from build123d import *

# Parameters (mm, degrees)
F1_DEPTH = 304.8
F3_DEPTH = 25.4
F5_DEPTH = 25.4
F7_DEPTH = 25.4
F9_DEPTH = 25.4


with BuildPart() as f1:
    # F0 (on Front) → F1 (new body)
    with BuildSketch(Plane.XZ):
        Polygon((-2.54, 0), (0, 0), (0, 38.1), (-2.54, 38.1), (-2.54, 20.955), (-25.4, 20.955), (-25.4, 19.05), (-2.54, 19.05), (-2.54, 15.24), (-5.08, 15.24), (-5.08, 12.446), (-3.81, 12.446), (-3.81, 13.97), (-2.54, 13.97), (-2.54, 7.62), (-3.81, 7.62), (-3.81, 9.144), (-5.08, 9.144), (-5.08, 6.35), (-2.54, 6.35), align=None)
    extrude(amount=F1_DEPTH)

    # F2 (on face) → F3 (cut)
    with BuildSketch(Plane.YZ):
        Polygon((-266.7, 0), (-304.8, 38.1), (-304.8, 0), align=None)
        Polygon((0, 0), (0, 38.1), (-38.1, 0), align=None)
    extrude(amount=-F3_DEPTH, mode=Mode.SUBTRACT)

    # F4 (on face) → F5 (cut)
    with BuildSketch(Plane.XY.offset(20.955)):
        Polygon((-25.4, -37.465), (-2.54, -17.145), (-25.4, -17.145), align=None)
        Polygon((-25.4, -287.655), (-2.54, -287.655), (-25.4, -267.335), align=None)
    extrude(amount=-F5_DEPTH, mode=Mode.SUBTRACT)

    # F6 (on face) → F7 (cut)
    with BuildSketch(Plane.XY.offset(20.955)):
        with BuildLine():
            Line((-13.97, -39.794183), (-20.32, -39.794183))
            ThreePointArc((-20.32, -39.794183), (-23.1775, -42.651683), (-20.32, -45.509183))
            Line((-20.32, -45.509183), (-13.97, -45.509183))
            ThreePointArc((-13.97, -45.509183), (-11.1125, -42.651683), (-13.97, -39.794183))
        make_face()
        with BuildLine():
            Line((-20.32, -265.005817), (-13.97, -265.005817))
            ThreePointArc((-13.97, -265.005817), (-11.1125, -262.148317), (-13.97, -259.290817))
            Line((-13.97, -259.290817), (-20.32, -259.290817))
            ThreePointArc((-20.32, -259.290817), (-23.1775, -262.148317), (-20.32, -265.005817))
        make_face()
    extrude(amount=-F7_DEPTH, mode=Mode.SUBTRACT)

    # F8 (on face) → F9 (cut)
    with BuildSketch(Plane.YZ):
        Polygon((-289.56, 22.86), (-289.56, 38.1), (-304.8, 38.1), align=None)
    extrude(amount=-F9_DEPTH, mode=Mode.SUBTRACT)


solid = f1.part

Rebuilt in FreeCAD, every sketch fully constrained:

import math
import FreeCAD as App
import Part
import Sketcher
from FreeCAD import Vector
Q = App.Units.Quantity

doc = App.newDocument("Part")
body = doc.addObject("PartDesign::Body", "Body")

# Sketch on XZ plane
sketch1 = body.newObject("Sketcher::SketchObject", "Sketch")
sketch1.AttachmentSupport = (doc.getObject("XZ_Plane"), [""])
sketch1.MapMode = "FlatFace"
sketch1.addGeometry([
    Part.LineSegment(Vector(-2.54, 0, 0), Vector(0, 0, 0)),  # 0
    Part.LineSegment(Vector(0, 0, 0), Vector(0, 38.1, 0)),  # 1
    Part.LineSegment(Vector(0, 38.1, 0), Vector(-2.54, 38.1, 0)),  # 2
    Part.LineSegment(Vector(-2.54, 38.1, 0), Vector(-2.54, 20.955, 0)),  # 3
    Part.LineSegment(Vector(-2.54, 20.955, 0), Vector(-25.4, 20.955, 0)),  # 4
    Part.LineSegment(Vector(-25.4, 20.955, 0), Vector(-25.4, 19.05, 0)),  # 5
    Part.LineSegment(Vector(-25.4, 19.05, 0), Vector(-2.54, 19.05, 0)),  # 6
    Part.LineSegment(Vector(-2.54, 19.05, 0), Vector(-2.54, 15.24, 0)),  # 7
    Part.LineSegment(Vector(-2.54, 15.24, 0), Vector(-5.08, 15.24, 0)),  # 8
    Part.LineSegment(Vector(-5.08, 15.24, 0), Vector(-5.08, 12.446, 0)),  # 9
    Part.LineSegment(Vector(-5.08, 12.446, 0), Vector(-3.81, 12.446, 0)),  # 10
    Part.LineSegment(Vector(-3.81, 12.446, 0), Vector(-3.81, 13.97, 0)),  # 11
    Part.LineSegment(Vector(-3.81, 13.97, 0), Vector(-2.54, 13.97, 0)),  # 12
    Part.LineSegment(Vector(-2.54, 13.97, 0), Vector(-2.54, 7.62, 0)),  # 13
    Part.LineSegment(Vector(-2.54, 7.62, 0), Vector(-3.81, 7.62, 0)),  # 14
    Part.LineSegment(Vector(-3.81, 7.62, 0), Vector(-3.81, 9.144, 0)),  # 15
    Part.LineSegment(Vector(-3.81, 9.144, 0), Vector(-5.08, 9.144, 0)),  # 16
    Part.LineSegment(Vector(-5.08, 9.144, 0), Vector(-5.08, 6.35, 0)),  # 17
    Part.LineSegment(Vector(-5.08, 6.35, 0), Vector(-2.54, 6.35, 0)),  # 18
    Part.LineSegment(Vector(-2.54, 6.35, 0), Vector(-2.54, 0, 0)),  # 19
], False)
sketch1.addConstraint([
    Sketcher.Constraint("Coincident", 0, 2, 1, 1),
    Sketcher.Constraint("Coincident", 1, 2, 2, 1),
    Sketcher.Constraint("Coincident", 2, 2, 3, 1),
    Sketcher.Constraint("Coincident", 3, 2, 4, 1),
    Sketcher.Constraint("Coincident", 4, 2, 5, 1),
    Sketcher.Constraint("Coincident", 5, 2, 6, 1),
    Sketcher.Constraint("Coincident", 6, 2, 7, 1),
    Sketcher.Constraint("Coincident", 7, 2, 8, 1),
    Sketcher.Constraint("Coincident", 8, 2, 9, 1),
    Sketcher.Constraint("Coincident", 9, 2, 10, 1),
    Sketcher.Constraint("Coincident", 10, 2, 11, 1),
    Sketcher.Constraint("Coincident", 11, 2, 12, 1),
    Sketcher.Constraint("Coincident", 12, 2, 13, 1),
    Sketcher.Constraint("Coincident", 13, 2, 14, 1),
    Sketcher.Constraint("Coincident", 14, 2, 15, 1),
    Sketcher.Constraint("Coincident", 15, 2, 16, 1),
    Sketcher.Constraint("Coincident", 16, 2, 17, 1),
    Sketcher.Constraint("Coincident", 17, 2, 18, 1),
    Sketcher.Constraint("Coincident", 18, 2, 19, 1),
    Sketcher.Constraint("Coincident", 19, 2, 0, 1),
    Sketcher.Constraint("Horizontal", 0),
    Sketcher.Constraint("Vertical", 1),
    Sketcher.Constraint("Horizontal", 2),
    Sketcher.Constraint("Vertical", 3),
    Sketcher.Constraint("Horizontal", 4),
    Sketcher.Constraint("Vertical", 5),
    Sketcher.Constraint("Horizontal", 6),
    Sketcher.Constraint("Vertical", 7),
    Sketcher.Constraint("Horizontal", 8),
    Sketcher.Constraint("Vertical", 9),
    Sketcher.Constraint("Horizontal", 10),
    Sketcher.Constraint("Vertical", 11),
    Sketcher.Constraint("Horizontal", 12),
    Sketcher.Constraint("Vertical", 13),
    Sketcher.Constraint("Horizontal", 14),
    Sketcher.Constraint("Vertical", 15),
    Sketcher.Constraint("Horizontal", 16),
    Sketcher.Constraint("Vertical", 17),
    Sketcher.Constraint("Horizontal", 18),
    Sketcher.Constraint("Vertical", 19),
    Sketcher.Constraint("Coincident", 0, 2, -1, 1),
    Sketcher.Constraint("Vertical", 3, 2, 6, 2),
    Sketcher.Constraint("Vertical", 7, 2, 12, 2),
    Sketcher.Constraint("Vertical", 11, 2, 14, 2),
    Sketcher.Constraint("Vertical", 9, 2, 16, 2),
    Sketcher.Constraint("Vertical", 13, 2, 18, 2),
    Sketcher.Constraint("Equal", 2, 8),
    Sketcher.Constraint("Equal", 10, 12),
    Sketcher.Constraint("Equal", 11, 15),
    Sketcher.Constraint("Equal", 9, 17),
    Sketcher.Constraint("Equal", 13, 19),
    Sketcher.Constraint("DistanceX", 0, 1, 0, 2, Q("0.1 in")),
    Sketcher.Constraint("DistanceX", 4, 2, 4, 1, Q("0.9 in")),
    Sketcher.Constraint("DistanceY", 1, 1, 1, 2, Q("1.5 in")),
    Sketcher.Constraint("DistanceY", 7, 2, 7, 1, Q("0.15 in")),
    Sketcher.Constraint("DistanceY", 9, 2, 9, 1, Q("0.11 in")),
    Sketcher.Constraint("DistanceY", 11, 1, 11, 2, Q("0.06 in")),
    Sketcher.Constraint("DistanceY", 13, 2, 13, 1, Q("0.25 in")),
    Sketcher.Constraint("DistanceY", 3, 2, 3, 1, Q("0.675 in")),
])
pad1 = body.newObject("PartDesign::Pad", "Pad")
pad1.Profile = sketch1
pad1.Length = Q("12 in")

# Sketch on YZ plane
sketch2 = body.newObject("Sketcher::SketchObject", "Sketch001")
sketch2.AttachmentSupport = (doc.getObject("YZ_Plane"), [""])
sketch2.MapMode = "FlatFace"
sketch2.addGeometry([
    Part.LineSegment(Vector(-266.7, 0, 0), Vector(-304.8, 38.1, 0)),  # 0
    Part.LineSegment(Vector(-304.8, 38.1, 0), Vector(-304.8, 0, 0)),  # 1
    Part.LineSegment(Vector(-304.8, 0, 0), Vector(-266.7, 0, 0)),  # 2
    Part.LineSegment(Vector(0, 0, 0), Vector(0, 38.1, 0)),  # 3
    Part.LineSegment(Vector(0, 38.1, 0), Vector(-38.1, 0, 0)),  # 4
    Part.LineSegment(Vector(-38.1, 0, 0), Vector(0, 0, 0)),  # 5
], False)
sketch2.addConstraint([
    Sketcher.Constraint("Coincident", 0, 2, 1, 1),
    Sketcher.Constraint("Coincident", 1, 2, 2, 1),
    Sketcher.Constraint("Coincident", 2, 2, 0, 1),
    Sketcher.Constraint("Coincident", 3, 2, 4, 1),
    Sketcher.Constraint("Coincident", 4, 2, 5, 1),
    Sketcher.Constraint("Coincident", 5, 2, 3, 1),
    Sketcher.Constraint("Vertical", 1),
    Sketcher.Constraint("Horizontal", 2),
    Sketcher.Constraint("Vertical", 3),
    Sketcher.Constraint("Horizontal", 5),
    Sketcher.Constraint("Coincident", 5, 2, -1, 1),
    Sketcher.Constraint("PointOnObject", 1, 2, -1),
    Sketcher.Constraint("Perpendicular", 0, 4),
    Sketcher.Constraint("Horizontal", 0, 2, 3, 2),
    Sketcher.Constraint("Equal", 2, 5),
    Sketcher.Constraint("DistanceX", 2, 1, 2, 2, Q("1.5 in")),
    Sketcher.Constraint("DistanceX", 0, 2, -1, 1, Q("12 in")),
])
pocket1 = body.newObject("PartDesign::Pocket", "Pocket")
pocket1.Profile = sketch2
pocket1.Length = Q("1 in")

# Sketch on XY plane
sketch3 = body.newObject("Sketcher::SketchObject", "Sketch002")
sketch3.AttachmentSupport = (doc.getObject("XY_Plane"), [""])
sketch3.MapMode = "FlatFace"
sketch3.AttachmentOffset = App.Placement(Vector(0, 0, 0.825 * 25.4), App.Rotation())
sketch3.addGeometry([
    Part.LineSegment(Vector(-25.4, -37.465, 0), Vector(-2.54, -17.145, 0)),  # 0
    Part.LineSegment(Vector(-2.54, -17.145, 0), Vector(-25.4, -17.145, 0)),  # 1
    Part.LineSegment(Vector(-25.4, -17.145, 0), Vector(-25.4, -37.465, 0)),  # 2
    Part.LineSegment(Vector(-25.4, -287.655, 0), Vector(-2.54, -287.655, 0)),  # 3
    Part.LineSegment(Vector(-2.54, -287.655, 0), Vector(-25.4, -267.335, 0)),  # 4
    Part.LineSegment(Vector(-25.4, -267.335, 0), Vector(-25.4, -287.655, 0)),  # 5
], False)
sketch3.addConstraint([
    Sketcher.Constraint("Coincident", 0, 2, 1, 1),
    Sketcher.Constraint("Coincident", 1, 2, 2, 1),
    Sketcher.Constraint("Coincident", 2, 2, 0, 1),
    Sketcher.Constraint("Coincident", 3, 2, 4, 1),
    Sketcher.Constraint("Coincident", 4, 2, 5, 1),
    Sketcher.Constraint("Coincident", 5, 2, 3, 1),
    Sketcher.Constraint("Horizontal", 1),
    Sketcher.Constraint("Vertical", 2),
    Sketcher.Constraint("Horizontal", 3),
    Sketcher.Constraint("Vertical", 5),
    Sketcher.Constraint("Vertical", 0, 2, 3, 2),
    Sketcher.Constraint("Vertical", 2, 2, 4, 2),
    Sketcher.Constraint("Equal", 2, 5),
    Sketcher.Constraint("DistanceX", 1, 2, 1, 1, Q("0.9 in")),
    Sketcher.Constraint("DistanceY", 2, 2, 2, 1, Q("0.8 in")),
    Sketcher.Constraint("DistanceX", 1, 2, -1, 1, Q("1 in")),
    Sketcher.Constraint("DistanceY", 3, 2, 2, 2, Q("9.85 in")),
    Sketcher.Constraint("DistanceY", 0, 2, -1, 1, Q("0.675 in")),
])
pocket2 = body.newObject("PartDesign::Pocket", "Pocket001")
pocket2.Profile = sketch3
pocket2.Length = Q("1 in")

# Sketch on XY plane
sketch4 = body.newObject("Sketcher::SketchObject", "Sketch003")
sketch4.AttachmentSupport = (doc.getObject("XY_Plane"), [""])
sketch4.MapMode = "FlatFace"
sketch4.AttachmentOffset = App.Placement(Vector(0, 0, 0.825 * 25.4), App.Rotation())
sketch4.addGeometry([
    Part.LineSegment(Vector(-13.97, -39.794183, 0), Vector(-20.32, -39.794183, 0)),  # 0
    Part.ArcOfCircle(Part.Circle(Vector(-20.32, -42.651683, 0), Vector(0, 0, 1), 2.8575), math.radians(90), math.radians(270)),  # 1
    Part.LineSegment(Vector(-20.32, -45.509183, 0), Vector(-13.97, -45.509183, 0)),  # 2
    Part.ArcOfCircle(Part.Circle(Vector(-13.97, -42.651683, 0), Vector(0, 0, 1), 2.8575), math.radians(-90), math.radians(90)),  # 3
    Part.LineSegment(Vector(-20.32, -265.005817, 0), Vector(-13.97, -265.005817, 0)),  # 4
    Part.ArcOfCircle(Part.Circle(Vector(-13.97, -262.148317, 0), Vector(0, 0, 1), 2.8575), math.radians(-90), math.radians(90)),  # 5
    Part.LineSegment(Vector(-13.97, -259.290817, 0), Vector(-20.32, -259.290817, 0)),  # 6
    Part.ArcOfCircle(Part.Circle(Vector(-20.32, -262.148317, 0), Vector(0, 0, 1), 2.8575), math.radians(90), math.radians(270)),  # 7
], False)
sketch4.addConstraint([
    Sketcher.Constraint("Tangent", 0, 2, 1, 1),
    Sketcher.Constraint("Tangent", 1, 2, 2, 1),
    Sketcher.Constraint("Tangent", 2, 2, 3, 1),
    Sketcher.Constraint("Tangent", 3, 2, 0, 1),
    Sketcher.Constraint("Tangent", 4, 2, 5, 1),
    Sketcher.Constraint("Tangent", 5, 2, 6, 1),
    Sketcher.Constraint("Tangent", 6, 2, 7, 1),
    Sketcher.Constraint("Tangent", 7, 2, 4, 1),
    Sketcher.Constraint("Horizontal", 0),
    Sketcher.Constraint("Horizontal", 2),
    Sketcher.Constraint("Horizontal", 4),
    Sketcher.Constraint("Horizontal", 6),
    Sketcher.Constraint("Equal", 3, 5),
    Sketcher.Constraint("Vertical", 3, 3, 5, 3),
    Sketcher.Constraint("Vertical", 1, 3, 7, 3),
    Sketcher.Constraint("DistanceX", 0, 2, 0, 1, Q("0.25 in")),
    Sketcher.Constraint("DistanceX", 1, 3, -1, 1, Q("0.8 in")),
    Sketcher.Constraint("Radius", 1, Q("0.1125 in")),
    Sketcher.Constraint("DistanceY", 1, 3, -1, 1, Q("1.6792001 in")),
    Sketcher.Constraint("DistanceY", 5, 3, -1, 1, Q("10.3207999 in")),
])
pocket3 = body.newObject("PartDesign::Pocket", "Pocket002")
pocket3.Profile = sketch4
pocket3.Length = Q("1 in")

# Sketch on YZ plane
sketch5 = body.newObject("Sketcher::SketchObject", "Sketch004")
sketch5.AttachmentSupport = (doc.getObject("YZ_Plane"), [""])
sketch5.MapMode = "FlatFace"
sketch5.addGeometry([
    Part.LineSegment(Vector(-289.56, 22.86, 0), Vector(-289.56, 38.1, 0)),
    Part.LineSegment(Vector(-289.56, 38.1, 0), Vector(-304.8, 38.1, 0)),
    Part.LineSegment(Vector(-304.8, 38.1, 0), Vector(-289.56, 22.86, 0)),
], False)
sketch5.addConstraint([
    Sketcher.Constraint("Coincident", 0, 2, 1, 1),
    Sketcher.Constraint("Coincident", 1, 2, 2, 1),
    Sketcher.Constraint("Coincident", 2, 2, 0, 1),
    Sketcher.Constraint("Vertical", 0),
    Sketcher.Constraint("Horizontal", 1),
    Sketcher.Constraint("Equal", 1, 0),
    Sketcher.Constraint("DistanceX", 1, 2, 1, 1, Q("0.6 in")),
    Sketcher.Constraint("DistanceX", 1, 2, -1, 1, Q("12 in")),
    Sketcher.Constraint("DistanceY", -1, 1, 0, 2, Q("1.5 in")),
])
pocket4 = body.newObject("PartDesign::Pocket", "Pocket003")
pocket4.Profile = sketch5
pocket4.Length = Q("1 in")

doc.recompute()
